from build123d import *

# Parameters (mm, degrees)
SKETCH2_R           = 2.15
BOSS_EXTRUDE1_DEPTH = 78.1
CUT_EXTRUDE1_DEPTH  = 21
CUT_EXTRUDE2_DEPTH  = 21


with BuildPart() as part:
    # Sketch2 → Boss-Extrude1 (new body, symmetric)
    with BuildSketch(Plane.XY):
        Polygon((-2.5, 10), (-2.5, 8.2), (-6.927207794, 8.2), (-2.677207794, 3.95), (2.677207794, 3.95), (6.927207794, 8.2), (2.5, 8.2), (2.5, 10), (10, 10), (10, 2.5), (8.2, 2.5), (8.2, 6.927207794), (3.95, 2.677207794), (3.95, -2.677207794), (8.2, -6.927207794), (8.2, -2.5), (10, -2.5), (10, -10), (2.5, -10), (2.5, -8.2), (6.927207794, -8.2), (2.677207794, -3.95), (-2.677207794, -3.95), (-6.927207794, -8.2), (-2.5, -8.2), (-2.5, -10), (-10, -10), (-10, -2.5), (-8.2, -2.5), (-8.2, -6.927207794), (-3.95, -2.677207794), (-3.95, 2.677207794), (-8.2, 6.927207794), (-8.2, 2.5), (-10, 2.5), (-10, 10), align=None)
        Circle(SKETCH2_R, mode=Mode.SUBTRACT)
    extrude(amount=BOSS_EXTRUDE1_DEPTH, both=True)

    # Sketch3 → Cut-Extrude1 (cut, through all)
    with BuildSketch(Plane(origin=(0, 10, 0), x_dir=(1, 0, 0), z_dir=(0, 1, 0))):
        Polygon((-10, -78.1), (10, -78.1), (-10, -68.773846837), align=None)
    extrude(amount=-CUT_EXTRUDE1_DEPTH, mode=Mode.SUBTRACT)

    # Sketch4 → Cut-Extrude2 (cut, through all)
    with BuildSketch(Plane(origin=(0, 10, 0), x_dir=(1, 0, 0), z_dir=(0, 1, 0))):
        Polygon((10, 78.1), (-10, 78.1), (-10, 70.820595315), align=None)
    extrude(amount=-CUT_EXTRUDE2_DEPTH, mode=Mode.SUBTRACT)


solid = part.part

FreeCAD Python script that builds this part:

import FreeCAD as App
import Part
import Sketcher
from FreeCAD import Vector
Q = App.Units.Quantity


def add_polygon(sketch, points):
    """Adds a closed chain of lines whose ends are joined by coincident constraints."""
    first, n = sketch.GeometryCount, len(points)
    for a, b in zip(points, points[1:] + points[:1]):
        sketch.addGeometry(Part.LineSegment(App.Vector(*a, 0), App.Vector(*b, 0)), False)
    for i in range(n):
        sketch.addConstraint(Sketcher.Constraint("Coincident", first + i, 2, first + (i + 1) % n, 1))

doc = App.newDocument("Part")
body = doc.addObject("PartDesign::Body", "Body")

sketch1 = body.newObject("Sketcher::SketchObject", "Sketch")
sketch1.AttachmentSupport = (doc.getObject("XY_Plane"), [""])
sketch1.MapMode = "FlatFace"
add_polygon(sketch1, [(-2.5, 8.2), (-2.5, 10), (-10, 10), (-10, 2.5), (-8.2, 2.5), (-8.2, 6.9), (-4, 2.7), (-4, -2.7), (-8.2, -6.9), (-8.2, -2.5), (-10, -2.5), (-10, -10), (-2.5, -10), (-2.5, -8.2), (-6.9, -8.2), (-2.7, -4), (2.7, -4), (6.9, -8.2), (2.5, -8.2), (2.5, -10), (10, -10), (10, -2.5), (8.2, -2.5), (8.2, -6.9), (4, -2.7), (4, 2.7), (8.2, 6.9), (8.2, 2.5), (10, 2.5), (10, 10), (2.5, 10), (2.5, 8.2), (6.9, 8.2), (2.7, 4), (-2.7, 4), (-6.9, 8.2)])
sketch1.addGeometry(Part.Circle(Vector(0, 0, 0), Vector(0, 0, 1), 2.1), False)
sketch1.addConstraint(Sketcher.Constraint("Vertical", 0))
sketch1.addConstraint(Sketcher.Constraint("Horizontal", 1))
sketch1.addConstraint(Sketcher.Constraint("Vertical", 2))
sketch1.addConstraint(Sketcher.Constraint("Horizontal", 3))
sketch1.addConstraint(Sketcher.Constraint("Vertical", 4))
sketch1.addConstraint(Sketcher.Constraint("Vertical", 6))
sketch1.addConstraint(Sketcher.Constraint("Vertical", 8))
sketch1.addConstraint(Sketcher.Constraint("Horizontal", 9))
sketch1.addConstraint(Sketcher.Constraint("Vertical", 10))
sketch1.addConstraint(Sketcher.Constraint("Horizontal", 11))
sketch1.addConstraint(Sketcher.Constraint("Vertical", 12))
sketch1.addConstraint(Sketcher.Constraint("Horizontal", 13))
sketch1.addConstraint(Sketcher.Constraint("Horizontal", 15))
sketch1.addConstraint(Sketcher.Constraint("Horizontal", 17))
sketch1.addConstraint(Sketcher.Constraint("Vertical", 18))
sketch1.addConstraint(Sketcher.Constraint("Horizontal", 19))
sketch1.addConstraint(Sketcher.Constraint("Vertical", 20))
sketch1.addConstraint(Sketcher.Constraint("Horizontal", 21))
sketch1.addConstraint(Sketcher.Constraint("Vertical", 22))
sketch1.addConstraint(Sketcher.Constraint("Vertical", 24))
sketch1.addConstraint(Sketcher.Constraint("Vertical", 26))
sketch1.addConstraint(Sketcher.Constraint("Horizontal", 27))
sketch1.addConstraint(Sketcher.Constraint("Vertical", 28))
sketch1.addConstraint(Sketcher.Constraint("Horizontal", 29))
sketch1.addConstraint(Sketcher.Constraint("Vertical", 30))
sketch1.addConstraint(Sketcher.Constraint("Horizontal", 31))
sketch1.addConstraint(Sketcher.Constraint("Horizontal", 33))
sketch1.addConstraint(Sketcher.Constraint("Horizontal", 35))
sketch1.addConstraint(Sketcher.Constraint("Coincident", 36, 3, -1, 1))
sketch1.addConstraint(Sketcher.Constraint("Symmetric", 0, 2, 18, 2, -1, 1))
sketch1.addConstraint(Sketcher.Constraint("Symmetric", 2, 2, 20, 2, -1, 1))
sketch1.addConstraint(Sketcher.Constraint("Symmetric", 4, 2, 22, 2, -1, 1))
sketch1.addConstraint(Sketcher.Constraint("Symmetric", 5, 2, 23, 2, -1, 1))
sketch1.addConstraint(Sketcher.Constraint("Symmetric", 7, 2, 25, 2, -1, 1))
sketch1.addConstraint(Sketcher.Constraint("Symmetric", 9, 2, 27, 2, -1, 1))
sketch1.addConstraint(Sketcher.Constraint("Symmetric", 11, 2, 29, 2, -1, 1))
sketch1.addConstraint(Sketcher.Constraint("Symmetric", 13, 2, 31, 2, -1, 1))
sketch1.addConstraint(Sketcher.Constraint("Symmetric", 14, 2, 32, 2, -1, 1))
sketch1.addConstraint(Sketcher.Constraint("Symmetric", 16, 2, 34, 2, -1, 1))
sketch1.addConstraint(Sketcher.Constraint("Symmetric", 13, 2, 16, 2, -2))
sketch1.addConstraint(Sketcher.Constraint("Symmetric", 11, 2, 18, 2, -2))
sketch1.addConstraint(Sketcher.Constraint("Symmetric", 9, 2, 20, 2, -2))
sketch1.addConstraint(Sketcher.Constraint("Symmetric", 7, 2, 22, 2, -2))
sketch1.addConstraint(Sketcher.Constraint("Perpendicular", 5, 7))
sketch1.addConstraint(Sketcher.Constraint("Parallel", 7, 14))
sketch1.addConstraint(Sketcher.Constraint("Perpendicular", 14, 16))
sketch1.addConstraint(Sketcher.Constraint("Perpendicular", 23, 25))
sketch1.addConstraint(Sketcher.Constraint("Perpendicular", 32, 34))
sketch1.addConstraint(Sketcher.Constraint("Horizontal", 6, 2, 23, 2))
sketch1.addConstraint(Sketcher.Constraint("Equal", 27, 0))
sketch1.addConstraint(Sketcher.Constraint("Equal", 29, 2))
sketch1.addConstraint(Sketcher.Constraint("Equal", 35, 4))
sketch1.addConstraint(Sketcher.Constraint("Equal", 33, 6))
sketch1.addConstraint(Sketcher.Constraint("Equal", 7, 14))
sketch1.addConstraint(Sketcher.Constraint("Diameter", 36, 4.3))
sketch1.addConstraint(Sketcher.Constraint("DistanceX", 1, 2, 1, 1, 7.5))
sketch1.addConstraint(Sketcher.Constraint("DistanceX", 3, 1, 3, 2, 1.8))
sketch1.addConstraint(Sketcher.Constraint("DistanceY", -1, 1, 0, 2, 10.0))
sketch1.addConstraint(Sketcher.Constraint("DistanceX", 5, 2, 24, 2, 7.9))
sketch1.addConstraint(Sketcher.Constraint("DistanceX", 13, 2, 13, 1, 4.427208))
pad1 = body.newObject("PartDesign::Pad", "Pad")
pad1.Profile = sketch1
pad1.Length = 156.2
pad1.Midplane = True

sketch2 = body.newObject("Sketcher::SketchObject", "Sketch001")
sketch2.AttachmentSupport = (doc.getObject("XZ_Plane"), [""])
sketch2.MapMode = "FlatFace"
sketch2.AttachmentOffset = App.Placement(Vector(0, 0, -10), App.Rotation())
add_polygon(sketch2, [(-10, 78), (10, 78), (-10, 69)])
sketch2.addConstraint(Sketcher.Constraint("Horizontal", 0))
sketch2.addConstraint(Sketcher.Constraint("Vertical", 2))
sketch2.addConstraint(Sketcher.Constraint("DistanceX", 0, 1, 0, 2, 20.0))
sketch2.addConstraint(Sketcher.Constraint("Angle", 1, Q("-155 deg")))
sketch2.addConstraint(Sketcher.Constraint("DistanceX", -1, 1, 0, 2, 10.0))
sketch2.addConstraint(Sketcher.Constraint("DistanceY", -1, 1, 0, 2, 78.1))
pocket1 = body.newObject("PartDesign::Pocket", "Pocket")
pocket1.Profile = sketch2
pocket1.Type = "ThroughAll"
pocket1.Reversed = True

sketch3 = body.newObject("Sketcher::SketchObject", "Sketch002")
sketch3.AttachmentSupport = (doc.getObject("XZ_Plane"), [""])
sketch3.MapMode = "FlatFace"
sketch3.AttachmentOffset = App.Placement(Vector(0, 0, -10), App.Rotation())
add_polygon(sketch3, [(10, -78), (-10, -78), (-10, -71)])
sketch3.addConstraint(Sketcher.Constraint("Horizontal", 0))
sketch3.addConstraint(Sketcher.Constraint("Vertical", 1))
sketch3.addConstraint(Sketcher.Constraint("DistanceX", 0, 2, 0, 1, 20.0))
sketch3.addConstraint(Sketcher.Constraint("Angle", 2, Q("-20 deg")))
sketch3.addConstraint(Sketcher.Constraint("DistanceX", 0, 2, -1, 1, 10.0))
sketch3.addConstraint(Sketcher.Constraint("DistanceY", 0, 2, -1, 1, 78.1))
pocket2 = body.newObject("PartDesign::Pocket", "Pocket001")
pocket2.Profile = sketch3
pocket2.Type = "ThroughAll"
pocket2.Reversed = True

doc.recompute()
